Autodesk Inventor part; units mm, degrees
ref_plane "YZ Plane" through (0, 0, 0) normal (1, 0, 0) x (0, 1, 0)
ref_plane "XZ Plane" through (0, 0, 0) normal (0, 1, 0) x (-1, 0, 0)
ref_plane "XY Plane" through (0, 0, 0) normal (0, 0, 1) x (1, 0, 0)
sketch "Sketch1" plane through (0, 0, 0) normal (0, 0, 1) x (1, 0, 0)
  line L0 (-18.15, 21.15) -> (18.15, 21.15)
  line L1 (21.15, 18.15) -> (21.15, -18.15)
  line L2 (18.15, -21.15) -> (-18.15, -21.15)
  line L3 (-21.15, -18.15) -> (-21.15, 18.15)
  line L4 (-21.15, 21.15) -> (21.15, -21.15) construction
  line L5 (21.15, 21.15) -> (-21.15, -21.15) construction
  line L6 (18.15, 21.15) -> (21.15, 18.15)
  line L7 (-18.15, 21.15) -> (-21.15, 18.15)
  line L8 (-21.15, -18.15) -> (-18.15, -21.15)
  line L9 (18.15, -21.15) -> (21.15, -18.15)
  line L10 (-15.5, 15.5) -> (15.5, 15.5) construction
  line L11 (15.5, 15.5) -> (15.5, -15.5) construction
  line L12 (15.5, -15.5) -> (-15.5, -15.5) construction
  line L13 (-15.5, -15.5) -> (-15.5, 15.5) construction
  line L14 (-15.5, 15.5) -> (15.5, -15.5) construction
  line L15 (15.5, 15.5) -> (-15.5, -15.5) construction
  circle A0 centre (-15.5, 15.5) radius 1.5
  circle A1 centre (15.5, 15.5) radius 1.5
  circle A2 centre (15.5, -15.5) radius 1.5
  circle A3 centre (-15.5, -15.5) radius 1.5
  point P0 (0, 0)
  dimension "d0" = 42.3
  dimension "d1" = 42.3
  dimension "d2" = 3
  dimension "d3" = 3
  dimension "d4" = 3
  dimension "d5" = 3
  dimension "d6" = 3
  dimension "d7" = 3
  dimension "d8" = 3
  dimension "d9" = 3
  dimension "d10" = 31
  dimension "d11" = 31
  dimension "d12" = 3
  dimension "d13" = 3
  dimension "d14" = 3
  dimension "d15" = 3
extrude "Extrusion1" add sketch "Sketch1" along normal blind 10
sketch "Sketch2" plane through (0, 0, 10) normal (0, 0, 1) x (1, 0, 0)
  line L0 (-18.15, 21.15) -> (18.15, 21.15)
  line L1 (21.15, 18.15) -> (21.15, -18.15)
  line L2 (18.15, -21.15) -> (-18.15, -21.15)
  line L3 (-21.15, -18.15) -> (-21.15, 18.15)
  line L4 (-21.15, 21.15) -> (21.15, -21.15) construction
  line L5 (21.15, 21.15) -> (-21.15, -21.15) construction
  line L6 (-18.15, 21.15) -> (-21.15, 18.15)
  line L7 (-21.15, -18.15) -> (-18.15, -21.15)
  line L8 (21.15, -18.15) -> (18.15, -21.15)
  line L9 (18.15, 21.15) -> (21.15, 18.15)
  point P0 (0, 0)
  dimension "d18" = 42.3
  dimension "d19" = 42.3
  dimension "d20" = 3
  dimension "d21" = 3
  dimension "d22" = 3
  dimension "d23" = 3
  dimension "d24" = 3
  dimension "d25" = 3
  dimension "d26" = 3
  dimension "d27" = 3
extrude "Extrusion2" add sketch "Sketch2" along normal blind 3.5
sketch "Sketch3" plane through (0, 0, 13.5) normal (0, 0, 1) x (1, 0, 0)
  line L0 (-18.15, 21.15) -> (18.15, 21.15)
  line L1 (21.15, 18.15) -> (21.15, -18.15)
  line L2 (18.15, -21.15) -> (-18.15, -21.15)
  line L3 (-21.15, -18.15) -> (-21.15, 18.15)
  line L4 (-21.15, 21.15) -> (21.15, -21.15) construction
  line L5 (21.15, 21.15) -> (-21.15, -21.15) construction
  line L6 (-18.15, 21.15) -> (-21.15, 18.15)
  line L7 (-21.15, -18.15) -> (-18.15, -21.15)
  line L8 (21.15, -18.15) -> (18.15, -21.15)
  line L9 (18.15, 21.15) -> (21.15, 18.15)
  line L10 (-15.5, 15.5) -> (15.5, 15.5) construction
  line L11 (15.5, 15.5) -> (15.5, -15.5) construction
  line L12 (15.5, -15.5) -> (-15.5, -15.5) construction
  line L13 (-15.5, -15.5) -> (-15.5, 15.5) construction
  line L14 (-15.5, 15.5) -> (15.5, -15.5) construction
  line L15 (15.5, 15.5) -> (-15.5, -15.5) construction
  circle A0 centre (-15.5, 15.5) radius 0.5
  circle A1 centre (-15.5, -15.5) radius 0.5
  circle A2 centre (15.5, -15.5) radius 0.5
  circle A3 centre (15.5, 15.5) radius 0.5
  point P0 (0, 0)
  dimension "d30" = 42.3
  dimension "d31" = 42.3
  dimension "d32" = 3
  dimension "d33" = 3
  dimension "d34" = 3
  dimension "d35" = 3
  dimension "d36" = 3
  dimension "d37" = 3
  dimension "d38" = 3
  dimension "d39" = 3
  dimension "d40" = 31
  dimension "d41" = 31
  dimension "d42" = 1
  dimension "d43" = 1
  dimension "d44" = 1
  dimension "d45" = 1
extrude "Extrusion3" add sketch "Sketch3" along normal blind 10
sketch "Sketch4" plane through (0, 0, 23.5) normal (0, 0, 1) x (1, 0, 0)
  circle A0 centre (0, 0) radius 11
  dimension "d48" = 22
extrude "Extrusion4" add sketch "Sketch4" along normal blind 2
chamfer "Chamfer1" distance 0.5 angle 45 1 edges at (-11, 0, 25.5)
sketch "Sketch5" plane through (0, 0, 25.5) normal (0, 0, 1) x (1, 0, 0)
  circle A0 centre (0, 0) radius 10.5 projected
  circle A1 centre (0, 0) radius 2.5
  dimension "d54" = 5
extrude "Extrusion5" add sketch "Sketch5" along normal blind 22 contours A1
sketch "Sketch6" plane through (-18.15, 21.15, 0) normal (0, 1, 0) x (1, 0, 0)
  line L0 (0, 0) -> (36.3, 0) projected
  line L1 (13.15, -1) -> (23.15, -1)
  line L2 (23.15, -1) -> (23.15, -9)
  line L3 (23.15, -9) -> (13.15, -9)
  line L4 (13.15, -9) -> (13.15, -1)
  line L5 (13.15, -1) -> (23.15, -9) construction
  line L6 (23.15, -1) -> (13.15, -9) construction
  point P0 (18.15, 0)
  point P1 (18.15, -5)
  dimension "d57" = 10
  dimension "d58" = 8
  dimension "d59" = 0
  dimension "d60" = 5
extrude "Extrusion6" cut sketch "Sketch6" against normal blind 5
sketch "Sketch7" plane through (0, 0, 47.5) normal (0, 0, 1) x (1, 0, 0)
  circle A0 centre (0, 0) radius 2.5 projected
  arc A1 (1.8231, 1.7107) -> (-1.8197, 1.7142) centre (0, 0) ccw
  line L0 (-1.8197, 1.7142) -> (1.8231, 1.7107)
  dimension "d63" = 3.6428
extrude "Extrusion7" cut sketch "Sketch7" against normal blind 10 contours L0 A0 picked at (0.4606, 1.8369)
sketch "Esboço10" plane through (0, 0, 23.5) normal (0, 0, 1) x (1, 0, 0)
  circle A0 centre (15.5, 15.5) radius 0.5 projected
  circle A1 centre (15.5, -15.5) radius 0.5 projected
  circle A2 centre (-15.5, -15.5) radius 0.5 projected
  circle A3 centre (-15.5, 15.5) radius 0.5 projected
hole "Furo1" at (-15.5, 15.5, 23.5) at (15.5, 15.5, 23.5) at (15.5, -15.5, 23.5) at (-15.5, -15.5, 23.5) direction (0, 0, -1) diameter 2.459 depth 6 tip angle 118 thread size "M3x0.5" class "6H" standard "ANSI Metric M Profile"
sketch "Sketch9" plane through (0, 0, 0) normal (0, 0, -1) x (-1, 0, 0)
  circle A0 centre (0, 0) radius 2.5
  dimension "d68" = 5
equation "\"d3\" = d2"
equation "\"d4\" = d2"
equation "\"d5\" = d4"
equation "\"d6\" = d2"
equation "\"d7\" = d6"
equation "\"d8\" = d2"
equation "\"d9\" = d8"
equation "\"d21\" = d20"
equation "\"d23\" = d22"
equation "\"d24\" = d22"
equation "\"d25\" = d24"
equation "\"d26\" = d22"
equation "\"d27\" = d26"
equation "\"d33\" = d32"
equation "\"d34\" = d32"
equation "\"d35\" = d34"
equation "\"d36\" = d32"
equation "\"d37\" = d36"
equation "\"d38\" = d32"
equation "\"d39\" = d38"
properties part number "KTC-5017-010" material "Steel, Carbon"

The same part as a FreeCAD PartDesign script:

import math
import FreeCAD as App
import Part
import Sketcher


def edges_at(feature, points):
    """Names of the edges that pass closest to the given points."""
    edges = feature.Shape.Edges
    near = lambda p: min(range(len(edges)), key=lambda i: edges[i].distToShape(Part.Vertex(*p))[0])
    return sorted({f"Edge{near(p) + 1}" for p in points})


def add_polygon(sketch, points):
    """Adds a closed chain of lines whose ends are joined by coincident constraints."""
    first, n = sketch.GeometryCount, len(points)
    for a, b in zip(points, points[1:] + points[:1]):
        sketch.addGeometry(Part.LineSegment(App.Vector(*a, 0), App.Vector(*b, 0)), False)
    for i in range(n):
        sketch.addConstraint(Sketcher.Constraint("Coincident", first + i, 2, first + (i + 1) % n, 1))

doc = App.newDocument("Part")
body = doc.addObject("PartDesign::Body", "Body")

sketch1 = body.newObject("Sketcher::SketchObject", "Sketch")
sketch1.AttachmentSupport = (doc.getObject("XY_Plane"), [""])
sketch1.MapMode = "FlatFace"
add_polygon(sketch1, [(18.1, 21.1), (-18.1, 21.1), (-21.1, 18.1), (-21.1, -18.1), (-18.1, -21.1), (18.1, -21.1), (21.1, -18.1), (21.1, 18.1)])
sketch1.addGeometry(Part.Circle(App.Vector(-15.5, -15.5, 0), App.Vector(0, 0, 1), 1.5), False)
sketch1.addGeometry(Part.Circle(App.Vector(15.5, -15.5, 0), App.Vector(0, 0, 1), 1.5), False)
sketch1.addGeometry(Part.Circle(App.Vector(-15.5, 15.5, 0), App.Vector(0, 0, 1), 1.5), False)
sketch1.addGeometry(Part.Circle(App.Vector(15.5, 15.5, 0), App.Vector(0, 0, 1), 1.5), False)
sketch1.addConstraint(Sketcher.Constraint("Horizontal", 0))
sketch1.addConstraint(Sketcher.Constraint("Vertical", 2))
sketch1.addConstraint(Sketcher.Constraint("Horizontal", 4))
sketch1.addConstraint(Sketcher.Constraint("Vertical", 6))
sketch1.addConstraint(Sketcher.Constraint("Equal", 8, 9))
sketch1.addConstraint(Sketcher.Constraint("Equal", 9, 10))
sketch1.addConstraint(Sketcher.Constraint("Equal", 10, 11))
sketch1.addConstraint(Sketcher.Constraint("Symmetric", 9, 3, 10, 3, -1, 1))
sketch1.addConstraint(Sketcher.Constraint("Symmetric", 8, 3, 11, 3, -1, 1))
sketch1.addConstraint(Sketcher.Constraint("Symmetric", 0, 2, 4, 2, -1, 1))
sketch1.addConstraint(Sketcher.Constraint("Symmetric", 1, 2, 5, 2, -1, 1))
sketch1.addConstraint(Sketcher.Constraint("Symmetric", 8, 3, 9, 3, -2))
sketch1.addConstraint(Sketcher.Constraint("Perpendicular", 1, 3))
sketch1.addConstraint(Sketcher.Constraint("Perpendicular", 5, 7))
sketch1.addConstraint(Sketcher.Constraint("Horizontal", 2, 2, 5, 2))
sketch1.addConstraint(Sketcher.Constraint("Horizontal", 1, 2, 6, 2))
sketch1.addConstraint(Sketcher.Constraint("Vertical", 0, 2, 3, 2))
sketch1.addConstraint(Sketcher.Constraint("Equal", 4, 2))
sketch1.addConstraint(Sketcher.Constraint("Diameter", 8, 3.0))
sketch1.addConstraint(Sketcher.Constraint("DistanceX", 8, 3, 9, 3, 31.0))
sketch1.addConstraint(Sketcher.Constraint("DistanceY", 8, 3, 10, 3, 31.0))
sketch1.addConstraint(Sketcher.Constraint("DistanceX", 1, 2, 0, 2, 3.0))
sketch1.addConstraint(Sketcher.Constraint("DistanceX", 0, 2, 0, 1, 36.3))
pad1 = body.newObject("PartDesign::Pad", "Pad")
pad1.Profile = sketch1
pad1.Length = 10

sketch2 = body.newObject("Sketcher::SketchObject", "Sketch001")
sketch2.AttachmentSupport = (doc.getObject("XY_Plane"), [""])
sketch2.MapMode = "FlatFace"
sketch2.AttachmentOffset = App.Placement(App.Vector(0, 0, 10), App.Rotation())
add_polygon(sketch2, [(18.1, 21.1), (-18.1, 21.1), (-21.1, 18.1), (-21.1, -18.1), (-18.1, -21.1), (18.1, -21.1), (21.1, -18.1), (21.1, 18.1)])
sketch2.addConstraint(Sketcher.Constraint("Horizontal", 0))
sketch2.addConstraint(Sketcher.Constraint("Vertical", 2))
sketch2.addConstraint(Sketcher.Constraint("Horizontal", 4))
sketch2.addConstraint(Sketcher.Constraint("Vertical", 6))
sketch2.addConstraint(Sketcher.Constraint("Symmetric", 0, 2, 4, 2, -1, 1))
sketch2.addConstraint(Sketcher.Constraint("Symmetric", 1, 2, 5, 2, -1, 1))
sketch2.addConstraint(Sketcher.Constraint("Perpendicular", 1, 3))
sketch2.addConstraint(Sketcher.Constraint("Perpendicular", 5, 7))
sketch2.addConstraint(Sketcher.Constraint("Horizontal", 2, 2, 5, 2))
sketch2.addConstraint(Sketcher.Constraint("Horizontal", 1, 2, 6, 2))
sketch2.addConstraint(Sketcher.Constraint("Vertical", 0, 2, 3, 2))
sketch2.addConstraint(Sketcher.Constraint("Equal", 4, 2))
sketch2.addConstraint(Sketcher.Constraint("DistanceX", 1, 2, 0, 2, 3.0))
sketch2.addConstraint(Sketcher.Constraint("DistanceY", 3, 2, 0, 2, 42.3))
pad2 = body.newObject("PartDesign::Pad", "Pad001")
pad2.Profile = sketch2
pad2.Length = 3.5

sketch3 = body.newObject("Sketcher::SketchObject", "Sketch002")
sketch3.AttachmentSupport = (doc.getObject("XY_Plane"), [""])
sketch3.MapMode = "FlatFace"
sketch3.AttachmentOffset = App.Placement(App.Vector(0, 0, 13.5), App.Rotation())
add_polygon(sketch3, [(18.1, 21.1), (-18.1, 21.1), (-21.1, 18.1), (-21.1, -18.1), (-18.1, -21.1), (18.1, -21.1), (21.1, -18.1), (21.1, 18.1)])
sketch3.addGeometry(Part.Circle(App.Vector(-15.5, -15.5, 0), App.Vector(0, 0, 1), 0.5), False)
sketch3.addGeometry(Part.Circle(App.Vector(15.5, -15.5, 0), App.Vector(0, 0, 1), 0.5), False)
sketch3.addGeometry(Part.Circle(App.Vector(-15.5, 15.5, 0), App.Vector(0, 0, 1), 0.5), False)
sketch3.addGeometry(Part.Circle(App.Vector(15.5, 15.5, 0), App.Vector(0, 0, 1), 0.5), False)
sketch3.addConstraint(Sketcher.Constraint("Horizontal", 0))
sketch3.addConstraint(Sketcher.Constraint("Vertical", 2))
sketch3.addConstraint(Sketcher.Constraint("Horizontal", 4))
sketch3.addConstraint(Sketcher.Constraint("Vertical", 6))
sketch3.addConstraint(Sketcher.Constraint("Equal", 8, 9))
sketch3.addConstraint(Sketcher.Constraint("Equal", 9, 10))
sketch3.addConstraint(Sketcher.Constraint("Equal", 10, 11))
sketch3.addConstraint(Sketcher.Constraint("Symmetric", 9, 3, 10, 3, -1, 1))
sketch3.addConstraint(Sketcher.Constraint("Symmetric", 8, 3, 11, 3, -1, 1))
sketch3.addConstraint(Sketcher.Constraint("Symmetric", 0, 2, 4, 2, -1, 1))
sketch3.addConstraint(Sketcher.Constraint("Symmetric", 1, 2, 5, 2, -1, 1))
sketch3.addConstraint(Sketcher.Constraint("Symmetric", 8, 3, 9, 3, -2))
sketch3.addConstraint(Sketcher.Constraint("Perpendicular", 1, 3))
sketch3.addConstraint(Sketcher.Constraint("Perpendicular", 5, 7))
sketch3.addConstraint(Sketcher.Constraint("Horizontal", 2, 2, 5, 2))
sketch3.addConstraint(Sketcher.Constraint("Horizontal", 1, 2, 6, 2))
sketch3.addConstraint(Sketcher.Constraint("Vertical", 0, 2, 3, 2))
sketch3.addConstraint(Sketcher.Constraint("Equal", 4, 2))
sketch3.addConstraint(Sketcher.Constraint("Diameter", 8, 1.0))
sketch3.addConstraint(Sketcher.Constraint("DistanceX", 8, 3, 9, 3, 31.0))
sketch3.addConstraint(Sketcher.Constraint("DistanceY", 8, 3, 10, 3, 31.0))
sketch3.addConstraint(Sketcher.Constraint("DistanceX", 1, 2, 0, 2, 3.0))
sketch3.addConstraint(Sketcher.Constraint("DistanceX", 0, 2, 0, 1, 36.3))
pad3 = body.newObject("PartDesign::Pad", "Pad002")
pad3.Profile = sketch3
pad3.Length = 10

sketch4 = body.newObject("Sketcher::SketchObject", "Sketch003")
sketch4.AttachmentSupport = (doc.getObject("XY_Plane"), [""])
sketch4.MapMode = "FlatFace"
sketch4.AttachmentOffset = App.Placement(App.Vector(0, 0, 23.5), App.Rotation())
sketch4.addGeometry(Part.Circle(App.Vector(0, 0, 0), App.Vector(0, 0, 1), 11), False)
sketch4.addConstraint(Sketcher.Constraint("Coincident", 0, 3, -1, 1))
sketch4.addConstraint(Sketcher.Constraint("Diameter", 0, 22.0))
pad4 = body.newObject("PartDesign::Pad", "Pad003")
pad4.Profile = sketch4
pad4.Length = 2
doc.recompute()

chamfer = body.newObject("PartDesign::Chamfer", "Chamfer")
chamfer.Base = (pad4, edges_at(pad4, [(-11, 0, 25.5)]))
chamfer.Size = 0.5

sketch5 = body.newObject("Sketcher::SketchObject", "Sketch004")
sketch5.AttachmentSupport = (doc.getObject("XY_Plane"), [""])
sketch5.MapMode = "FlatFace"
sketch5.AttachmentOffset = App.Placement(App.Vector(0, 0, 25.5), App.Rotation())
sketch5.addGeometry(Part.Circle(App.Vector(0, 0, 0), App.Vector(0, 0, 1), 2.5), False)
sketch5.addConstraint(Sketcher.Constraint("Coincident", 0, 3, -1, 1))
sketch5.addConstraint(Sketcher.Constraint("Diameter", 0, 5.0))
pad5 = body.newObject("PartDesign::Pad", "Pad004")
pad5.Profile = sketch5
pad5.Length = 22

sketch6 = body.newObject("Sketcher::SketchObject", "Sketch005")
sketch6.AttachmentSupport = (doc.getObject("XZ_Plane"), [""])
sketch6.MapMode = "FlatFace"
sketch6.AttachmentOffset = App.Placement(App.Vector(0, 0, -21.15), App.Rotation())
add_polygon(sketch6, [(5, 1), (-5, 1), (-5, 9), (5, 9)])
sketch6.addConstraint(Sketcher.Constraint("Horizontal", 0))
sketch6.addConstraint(Sketcher.Constraint("Vertical", 1))
sketch6.addConstraint(Sketcher.Constraint("Horizontal", 2))
sketch6.addConstraint(Sketcher.Constraint("Vertical", 3))
sketch6.addConstraint(Sketcher.Constraint("DistanceX", 0, 2, 0, 1, 10.0))
sketch6.addConstraint(Sketcher.Constraint("DistanceY", 1, 1, 1, 2, 8.0))
sketch6.addConstraint(Sketcher.Constraint("DistanceX", 0, 2, -1, 1, 5.0))
sketch6.addConstraint(Sketcher.Constraint("DistanceY", -1, 1, 0, 2, 1.0))
pocket1 = body.newObject("PartDesign::Pocket", "Pocket")
pocket1.Profile = sketch6
pocket1.Length = 5
pocket1.Reversed = True

sketch7 = body.newObject("Sketcher::SketchObject", "Sketch006")
sketch7.AttachmentSupport = (doc.getObject("XY_Plane"), [""])
sketch7.MapMode = "FlatFace"
sketch7.AttachmentOffset = App.Placement(App.Vector(0, 0, 47.5), App.Rotation())
sketch7.addGeometry(Part.LineSegment(App.Vector(-1.8, 1.7, 0), App.Vector(1.8, 1.7, 0)), False)
sketch7.addGeometry(Part.ArcOfCircle(Part.Circle(App.Vector(0, 0, 0), App.Vector(0, 0, 1), 2.5), math.radians(43), math.radians(137)), False)
sketch7.addConstraint(Sketcher.Constraint("Coincident", 0, 1, 1, 2))
sketch7.addConstraint(Sketcher.Constraint("Coincident", 1, 1, 0, 2))
sketch7.addConstraint(Sketcher.Constraint("Coincident", 1, 3, -1, 1))
sketch7.addConstraint(Sketcher.Constraint("Radius", 1, 2.5))
sketch7.addConstraint(Sketcher.Constraint("Distance", 0, 3.6428))
sketch7.addConstraint(Sketcher.Constraint("DistanceX", -1, 1, 1, 1, 1.823))
pocket2 = body.newObject("PartDesign::Pocket", "Pocket001")
pocket2.Profile = sketch7
pocket2.Length = 10

sketch8 = body.newObject("Sketcher::SketchObject", "Sketch007")
sketch8.AttachmentSupport = (doc.getObject("XY_Plane"), [""])
sketch8.MapMode = "FlatFace"
sketch8.AttachmentOffset = App.Placement(App.Vector(0, 0, 23.5), App.Rotation())
sketch8.addGeometry(Part.Circle(App.Vector(-15.5, 15.5, 0), App.Vector(0, 0, 1), 1.2), False)
sketch8.addGeometry(Part.Circle(App.Vector(15.5, 15.5, 0), App.Vector(0, 0, 1), 1.2), False)
sketch8.addGeometry(Part.Circle(App.Vector(15.5, -15.5, 0), App.Vector(0, 0, 1), 1.2), False)
sketch8.addGeometry(Part.Circle(App.Vector(-15.5, -15.5, 0), App.Vector(0, 0, 1), 1.2), False)
sketch8.addConstraint(Sketcher.Constraint("Equal", 0, 1))
sketch8.addConstraint(Sketcher.Constraint("Equal", 1, 2))
sketch8.addConstraint(Sketcher.Constraint("Equal", 2, 3))
sketch8.addConstraint(Sketcher.Constraint("Symmetric", 0, 3, 2, 3, -1, 1))
sketch8.addConstraint(Sketcher.Constraint("Symmetric", 1, 3, 3, 3, -1, 1))
sketch8.addConstraint(Sketcher.Constraint("Symmetric", 0, 3, 1, 3, -2))
sketch8.addConstraint(Sketcher.Constraint("Diameter", 0, 2.459))
sketch8.addConstraint(Sketcher.Constraint("DistanceX", 0, 3, 1, 3, 31.0))
sketch8.addConstraint(Sketcher.Constraint("DistanceY", 2, 3, 1, 3, 31.0))
doc.recompute()
hole = body.newObject("PartDesign::Hole", "Hole")
hole.Profile = sketch8
hole.ThreadType = "None"
hole.Diameter = 2.459
hole.DepthType = "Dimension"
hole.Depth = 6
hole.DrillPoint = "Angled"
hole.DrillPointAngle = 118

doc.recompute()
